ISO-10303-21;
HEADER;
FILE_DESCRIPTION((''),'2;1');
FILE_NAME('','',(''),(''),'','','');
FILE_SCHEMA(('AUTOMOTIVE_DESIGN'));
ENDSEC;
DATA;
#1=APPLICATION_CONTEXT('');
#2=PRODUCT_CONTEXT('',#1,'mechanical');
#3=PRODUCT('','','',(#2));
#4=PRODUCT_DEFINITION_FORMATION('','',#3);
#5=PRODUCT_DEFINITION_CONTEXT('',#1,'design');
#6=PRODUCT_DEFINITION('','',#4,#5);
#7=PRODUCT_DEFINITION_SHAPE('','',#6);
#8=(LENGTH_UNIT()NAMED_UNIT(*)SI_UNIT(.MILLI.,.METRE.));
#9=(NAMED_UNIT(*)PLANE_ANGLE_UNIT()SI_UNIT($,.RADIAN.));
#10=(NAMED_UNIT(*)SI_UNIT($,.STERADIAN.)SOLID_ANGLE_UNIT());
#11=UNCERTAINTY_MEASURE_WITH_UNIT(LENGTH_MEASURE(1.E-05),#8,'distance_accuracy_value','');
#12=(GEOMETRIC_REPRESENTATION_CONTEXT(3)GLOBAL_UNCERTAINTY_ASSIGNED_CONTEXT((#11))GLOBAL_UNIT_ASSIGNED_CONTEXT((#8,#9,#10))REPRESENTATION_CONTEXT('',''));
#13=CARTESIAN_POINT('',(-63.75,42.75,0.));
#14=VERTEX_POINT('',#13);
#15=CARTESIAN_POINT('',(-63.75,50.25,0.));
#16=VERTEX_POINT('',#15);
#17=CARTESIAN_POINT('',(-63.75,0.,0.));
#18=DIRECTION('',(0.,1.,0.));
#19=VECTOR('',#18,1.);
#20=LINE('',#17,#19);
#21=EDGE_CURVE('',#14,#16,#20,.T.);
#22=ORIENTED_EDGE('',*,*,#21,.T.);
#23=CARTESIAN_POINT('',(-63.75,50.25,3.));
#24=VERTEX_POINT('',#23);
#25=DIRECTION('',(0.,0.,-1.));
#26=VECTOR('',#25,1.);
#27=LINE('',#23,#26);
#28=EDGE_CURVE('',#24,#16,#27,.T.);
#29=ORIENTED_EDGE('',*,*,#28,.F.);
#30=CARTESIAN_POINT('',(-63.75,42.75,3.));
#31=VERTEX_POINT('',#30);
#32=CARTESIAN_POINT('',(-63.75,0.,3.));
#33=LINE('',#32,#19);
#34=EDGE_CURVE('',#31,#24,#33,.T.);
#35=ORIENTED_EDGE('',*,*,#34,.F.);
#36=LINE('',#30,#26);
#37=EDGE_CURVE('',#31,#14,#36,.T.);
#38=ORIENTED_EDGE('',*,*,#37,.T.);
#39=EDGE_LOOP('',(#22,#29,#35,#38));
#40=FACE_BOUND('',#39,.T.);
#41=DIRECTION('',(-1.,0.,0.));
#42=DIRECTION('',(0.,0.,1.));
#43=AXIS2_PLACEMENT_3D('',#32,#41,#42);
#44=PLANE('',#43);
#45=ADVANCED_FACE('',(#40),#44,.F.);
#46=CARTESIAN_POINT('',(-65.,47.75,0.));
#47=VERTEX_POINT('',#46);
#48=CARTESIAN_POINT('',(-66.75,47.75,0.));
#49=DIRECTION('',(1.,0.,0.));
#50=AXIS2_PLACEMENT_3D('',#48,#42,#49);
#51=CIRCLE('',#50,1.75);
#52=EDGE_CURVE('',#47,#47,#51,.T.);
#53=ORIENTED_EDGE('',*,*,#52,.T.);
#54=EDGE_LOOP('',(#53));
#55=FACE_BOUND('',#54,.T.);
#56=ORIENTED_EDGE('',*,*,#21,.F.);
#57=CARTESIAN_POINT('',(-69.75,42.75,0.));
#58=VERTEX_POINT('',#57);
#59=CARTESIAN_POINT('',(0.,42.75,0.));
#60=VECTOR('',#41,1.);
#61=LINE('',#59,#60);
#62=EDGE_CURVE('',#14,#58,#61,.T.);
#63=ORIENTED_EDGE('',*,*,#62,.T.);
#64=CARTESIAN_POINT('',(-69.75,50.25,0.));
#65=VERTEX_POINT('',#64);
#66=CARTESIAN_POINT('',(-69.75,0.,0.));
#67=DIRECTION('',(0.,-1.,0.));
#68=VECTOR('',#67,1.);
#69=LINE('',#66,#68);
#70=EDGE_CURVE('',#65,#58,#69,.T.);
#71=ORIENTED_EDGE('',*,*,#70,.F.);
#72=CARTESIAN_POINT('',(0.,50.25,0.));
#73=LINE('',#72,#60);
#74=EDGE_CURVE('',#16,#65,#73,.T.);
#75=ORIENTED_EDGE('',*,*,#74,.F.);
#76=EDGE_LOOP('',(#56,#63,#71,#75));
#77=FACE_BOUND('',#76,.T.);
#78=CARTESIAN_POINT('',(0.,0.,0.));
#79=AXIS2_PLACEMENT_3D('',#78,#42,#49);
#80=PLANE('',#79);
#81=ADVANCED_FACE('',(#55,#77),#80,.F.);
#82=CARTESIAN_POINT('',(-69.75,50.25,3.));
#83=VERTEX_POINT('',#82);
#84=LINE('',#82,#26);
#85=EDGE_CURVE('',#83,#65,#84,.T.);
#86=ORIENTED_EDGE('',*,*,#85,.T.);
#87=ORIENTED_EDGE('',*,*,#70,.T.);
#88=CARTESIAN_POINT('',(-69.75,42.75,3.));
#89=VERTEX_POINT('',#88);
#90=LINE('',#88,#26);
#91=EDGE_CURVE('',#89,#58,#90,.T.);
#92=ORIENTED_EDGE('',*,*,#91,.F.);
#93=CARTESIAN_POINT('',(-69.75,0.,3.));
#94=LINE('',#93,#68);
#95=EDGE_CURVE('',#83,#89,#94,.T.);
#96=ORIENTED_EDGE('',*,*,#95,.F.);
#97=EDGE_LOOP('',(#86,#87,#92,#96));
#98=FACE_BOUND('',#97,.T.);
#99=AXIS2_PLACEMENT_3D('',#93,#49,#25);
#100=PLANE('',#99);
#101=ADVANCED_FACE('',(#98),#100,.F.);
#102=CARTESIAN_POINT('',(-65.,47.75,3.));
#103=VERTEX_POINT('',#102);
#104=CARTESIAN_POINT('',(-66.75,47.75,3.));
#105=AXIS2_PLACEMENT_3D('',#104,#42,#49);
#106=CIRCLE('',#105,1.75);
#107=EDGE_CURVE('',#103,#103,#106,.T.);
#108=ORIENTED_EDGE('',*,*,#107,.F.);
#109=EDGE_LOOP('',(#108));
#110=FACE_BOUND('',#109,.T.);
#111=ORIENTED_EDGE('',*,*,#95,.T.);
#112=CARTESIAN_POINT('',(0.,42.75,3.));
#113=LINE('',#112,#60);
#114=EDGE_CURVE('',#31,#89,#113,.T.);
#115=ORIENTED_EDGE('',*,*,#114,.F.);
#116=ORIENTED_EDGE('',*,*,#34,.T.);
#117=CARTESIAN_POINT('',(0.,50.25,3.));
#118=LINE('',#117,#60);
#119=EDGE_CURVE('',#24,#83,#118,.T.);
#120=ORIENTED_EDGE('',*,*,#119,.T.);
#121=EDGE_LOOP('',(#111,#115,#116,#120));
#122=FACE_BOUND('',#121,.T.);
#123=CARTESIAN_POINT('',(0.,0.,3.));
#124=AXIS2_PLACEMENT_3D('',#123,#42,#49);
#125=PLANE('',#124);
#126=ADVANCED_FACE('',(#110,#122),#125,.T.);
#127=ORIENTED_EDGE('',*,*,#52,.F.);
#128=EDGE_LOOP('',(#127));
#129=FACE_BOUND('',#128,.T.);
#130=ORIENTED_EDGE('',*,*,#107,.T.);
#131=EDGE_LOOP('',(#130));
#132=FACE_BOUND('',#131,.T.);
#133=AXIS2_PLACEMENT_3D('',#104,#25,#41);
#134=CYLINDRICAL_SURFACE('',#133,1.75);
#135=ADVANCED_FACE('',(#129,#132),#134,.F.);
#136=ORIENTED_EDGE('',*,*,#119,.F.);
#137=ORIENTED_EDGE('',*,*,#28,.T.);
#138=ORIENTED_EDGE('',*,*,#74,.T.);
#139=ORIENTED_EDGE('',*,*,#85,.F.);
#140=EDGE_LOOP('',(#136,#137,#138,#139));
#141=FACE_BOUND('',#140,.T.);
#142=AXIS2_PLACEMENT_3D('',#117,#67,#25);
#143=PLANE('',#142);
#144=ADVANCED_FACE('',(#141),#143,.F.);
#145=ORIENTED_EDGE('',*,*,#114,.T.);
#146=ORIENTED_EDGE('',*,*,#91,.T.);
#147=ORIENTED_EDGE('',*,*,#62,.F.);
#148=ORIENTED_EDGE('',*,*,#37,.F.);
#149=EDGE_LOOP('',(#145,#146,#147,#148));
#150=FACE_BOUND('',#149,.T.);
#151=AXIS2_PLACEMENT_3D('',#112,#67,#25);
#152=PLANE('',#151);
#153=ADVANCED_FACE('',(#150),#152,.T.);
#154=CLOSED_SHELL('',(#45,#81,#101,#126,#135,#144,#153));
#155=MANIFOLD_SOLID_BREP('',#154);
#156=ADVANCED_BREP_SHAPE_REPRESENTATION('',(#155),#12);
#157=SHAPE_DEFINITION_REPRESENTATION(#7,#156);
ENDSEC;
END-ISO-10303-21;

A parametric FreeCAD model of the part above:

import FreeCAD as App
import Part
import Sketcher
from FreeCAD import Vector
Q = App.Units.Quantity


def add_polygon(sketch, points):
    """Adds a closed chain of lines whose ends are joined by coincident constraints."""
    first, n = sketch.GeometryCount, len(points)
    for a, b in zip(points, points[1:] + points[:1]):
        sketch.addGeometry(Part.LineSegment(App.Vector(*a, 0), App.Vector(*b, 0)), False)
    for i in range(n):
        sketch.addConstraint(Sketcher.Constraint("Coincident", first + i, 2, first + (i + 1) % n, 1))

doc = App.newDocument("Part")
body = doc.addObject("PartDesign::Body", "Body")

# Sketch on XY plane
sketch1 = body.newObject("Sketcher::SketchObject", "Sketch")
sketch1.AttachmentSupport = (doc.getObject("XY_Plane"), [""])
sketch1.MapMode = "FlatFace"
add_polygon(sketch1, [(-69.75, 50.25), (-69.75, 42.75), (-63.75, 42.75), (-63.75, 50.25)])  # lines 0-3
sketch1.addGeometry(Part.Circle(Vector(-66.75, 47.75, 0), Vector(0, 0, 1), 1.75), False)  # 4
sketch1.addConstraint([
    Sketcher.Constraint("Vertical", 0),
    Sketcher.Constraint("Horizontal", 1),
    Sketcher.Constraint("Vertical", 2),
    Sketcher.Constraint("Horizontal", 3),
    Sketcher.Constraint("Diameter", 4, Q("3.5 mm")),
    Sketcher.Constraint("DistanceX", 1, 1, 1, 2, Q("6 mm")),
    Sketcher.Constraint("DistanceY", 0, 2, 0, 1, Q("7.5 mm")),
    Sketcher.Constraint("DistanceX", 0, 2, 4, 3, Q("3 mm")),
    Sketcher.Constraint("DistanceY", 0, 2, 4, 3, Q("5 mm")),
    Sketcher.Constraint("DistanceX", 4, 3, -1, 1, Q("66.75 mm")),
    Sketcher.Constraint("DistanceY", -1, 1, 4, 3, Q("47.75 mm")),
])
pad1 = body.newObject("PartDesign::Pad", "Pad")
pad1.Profile = sketch1
pad1.Length = 3

doc.recompute()
